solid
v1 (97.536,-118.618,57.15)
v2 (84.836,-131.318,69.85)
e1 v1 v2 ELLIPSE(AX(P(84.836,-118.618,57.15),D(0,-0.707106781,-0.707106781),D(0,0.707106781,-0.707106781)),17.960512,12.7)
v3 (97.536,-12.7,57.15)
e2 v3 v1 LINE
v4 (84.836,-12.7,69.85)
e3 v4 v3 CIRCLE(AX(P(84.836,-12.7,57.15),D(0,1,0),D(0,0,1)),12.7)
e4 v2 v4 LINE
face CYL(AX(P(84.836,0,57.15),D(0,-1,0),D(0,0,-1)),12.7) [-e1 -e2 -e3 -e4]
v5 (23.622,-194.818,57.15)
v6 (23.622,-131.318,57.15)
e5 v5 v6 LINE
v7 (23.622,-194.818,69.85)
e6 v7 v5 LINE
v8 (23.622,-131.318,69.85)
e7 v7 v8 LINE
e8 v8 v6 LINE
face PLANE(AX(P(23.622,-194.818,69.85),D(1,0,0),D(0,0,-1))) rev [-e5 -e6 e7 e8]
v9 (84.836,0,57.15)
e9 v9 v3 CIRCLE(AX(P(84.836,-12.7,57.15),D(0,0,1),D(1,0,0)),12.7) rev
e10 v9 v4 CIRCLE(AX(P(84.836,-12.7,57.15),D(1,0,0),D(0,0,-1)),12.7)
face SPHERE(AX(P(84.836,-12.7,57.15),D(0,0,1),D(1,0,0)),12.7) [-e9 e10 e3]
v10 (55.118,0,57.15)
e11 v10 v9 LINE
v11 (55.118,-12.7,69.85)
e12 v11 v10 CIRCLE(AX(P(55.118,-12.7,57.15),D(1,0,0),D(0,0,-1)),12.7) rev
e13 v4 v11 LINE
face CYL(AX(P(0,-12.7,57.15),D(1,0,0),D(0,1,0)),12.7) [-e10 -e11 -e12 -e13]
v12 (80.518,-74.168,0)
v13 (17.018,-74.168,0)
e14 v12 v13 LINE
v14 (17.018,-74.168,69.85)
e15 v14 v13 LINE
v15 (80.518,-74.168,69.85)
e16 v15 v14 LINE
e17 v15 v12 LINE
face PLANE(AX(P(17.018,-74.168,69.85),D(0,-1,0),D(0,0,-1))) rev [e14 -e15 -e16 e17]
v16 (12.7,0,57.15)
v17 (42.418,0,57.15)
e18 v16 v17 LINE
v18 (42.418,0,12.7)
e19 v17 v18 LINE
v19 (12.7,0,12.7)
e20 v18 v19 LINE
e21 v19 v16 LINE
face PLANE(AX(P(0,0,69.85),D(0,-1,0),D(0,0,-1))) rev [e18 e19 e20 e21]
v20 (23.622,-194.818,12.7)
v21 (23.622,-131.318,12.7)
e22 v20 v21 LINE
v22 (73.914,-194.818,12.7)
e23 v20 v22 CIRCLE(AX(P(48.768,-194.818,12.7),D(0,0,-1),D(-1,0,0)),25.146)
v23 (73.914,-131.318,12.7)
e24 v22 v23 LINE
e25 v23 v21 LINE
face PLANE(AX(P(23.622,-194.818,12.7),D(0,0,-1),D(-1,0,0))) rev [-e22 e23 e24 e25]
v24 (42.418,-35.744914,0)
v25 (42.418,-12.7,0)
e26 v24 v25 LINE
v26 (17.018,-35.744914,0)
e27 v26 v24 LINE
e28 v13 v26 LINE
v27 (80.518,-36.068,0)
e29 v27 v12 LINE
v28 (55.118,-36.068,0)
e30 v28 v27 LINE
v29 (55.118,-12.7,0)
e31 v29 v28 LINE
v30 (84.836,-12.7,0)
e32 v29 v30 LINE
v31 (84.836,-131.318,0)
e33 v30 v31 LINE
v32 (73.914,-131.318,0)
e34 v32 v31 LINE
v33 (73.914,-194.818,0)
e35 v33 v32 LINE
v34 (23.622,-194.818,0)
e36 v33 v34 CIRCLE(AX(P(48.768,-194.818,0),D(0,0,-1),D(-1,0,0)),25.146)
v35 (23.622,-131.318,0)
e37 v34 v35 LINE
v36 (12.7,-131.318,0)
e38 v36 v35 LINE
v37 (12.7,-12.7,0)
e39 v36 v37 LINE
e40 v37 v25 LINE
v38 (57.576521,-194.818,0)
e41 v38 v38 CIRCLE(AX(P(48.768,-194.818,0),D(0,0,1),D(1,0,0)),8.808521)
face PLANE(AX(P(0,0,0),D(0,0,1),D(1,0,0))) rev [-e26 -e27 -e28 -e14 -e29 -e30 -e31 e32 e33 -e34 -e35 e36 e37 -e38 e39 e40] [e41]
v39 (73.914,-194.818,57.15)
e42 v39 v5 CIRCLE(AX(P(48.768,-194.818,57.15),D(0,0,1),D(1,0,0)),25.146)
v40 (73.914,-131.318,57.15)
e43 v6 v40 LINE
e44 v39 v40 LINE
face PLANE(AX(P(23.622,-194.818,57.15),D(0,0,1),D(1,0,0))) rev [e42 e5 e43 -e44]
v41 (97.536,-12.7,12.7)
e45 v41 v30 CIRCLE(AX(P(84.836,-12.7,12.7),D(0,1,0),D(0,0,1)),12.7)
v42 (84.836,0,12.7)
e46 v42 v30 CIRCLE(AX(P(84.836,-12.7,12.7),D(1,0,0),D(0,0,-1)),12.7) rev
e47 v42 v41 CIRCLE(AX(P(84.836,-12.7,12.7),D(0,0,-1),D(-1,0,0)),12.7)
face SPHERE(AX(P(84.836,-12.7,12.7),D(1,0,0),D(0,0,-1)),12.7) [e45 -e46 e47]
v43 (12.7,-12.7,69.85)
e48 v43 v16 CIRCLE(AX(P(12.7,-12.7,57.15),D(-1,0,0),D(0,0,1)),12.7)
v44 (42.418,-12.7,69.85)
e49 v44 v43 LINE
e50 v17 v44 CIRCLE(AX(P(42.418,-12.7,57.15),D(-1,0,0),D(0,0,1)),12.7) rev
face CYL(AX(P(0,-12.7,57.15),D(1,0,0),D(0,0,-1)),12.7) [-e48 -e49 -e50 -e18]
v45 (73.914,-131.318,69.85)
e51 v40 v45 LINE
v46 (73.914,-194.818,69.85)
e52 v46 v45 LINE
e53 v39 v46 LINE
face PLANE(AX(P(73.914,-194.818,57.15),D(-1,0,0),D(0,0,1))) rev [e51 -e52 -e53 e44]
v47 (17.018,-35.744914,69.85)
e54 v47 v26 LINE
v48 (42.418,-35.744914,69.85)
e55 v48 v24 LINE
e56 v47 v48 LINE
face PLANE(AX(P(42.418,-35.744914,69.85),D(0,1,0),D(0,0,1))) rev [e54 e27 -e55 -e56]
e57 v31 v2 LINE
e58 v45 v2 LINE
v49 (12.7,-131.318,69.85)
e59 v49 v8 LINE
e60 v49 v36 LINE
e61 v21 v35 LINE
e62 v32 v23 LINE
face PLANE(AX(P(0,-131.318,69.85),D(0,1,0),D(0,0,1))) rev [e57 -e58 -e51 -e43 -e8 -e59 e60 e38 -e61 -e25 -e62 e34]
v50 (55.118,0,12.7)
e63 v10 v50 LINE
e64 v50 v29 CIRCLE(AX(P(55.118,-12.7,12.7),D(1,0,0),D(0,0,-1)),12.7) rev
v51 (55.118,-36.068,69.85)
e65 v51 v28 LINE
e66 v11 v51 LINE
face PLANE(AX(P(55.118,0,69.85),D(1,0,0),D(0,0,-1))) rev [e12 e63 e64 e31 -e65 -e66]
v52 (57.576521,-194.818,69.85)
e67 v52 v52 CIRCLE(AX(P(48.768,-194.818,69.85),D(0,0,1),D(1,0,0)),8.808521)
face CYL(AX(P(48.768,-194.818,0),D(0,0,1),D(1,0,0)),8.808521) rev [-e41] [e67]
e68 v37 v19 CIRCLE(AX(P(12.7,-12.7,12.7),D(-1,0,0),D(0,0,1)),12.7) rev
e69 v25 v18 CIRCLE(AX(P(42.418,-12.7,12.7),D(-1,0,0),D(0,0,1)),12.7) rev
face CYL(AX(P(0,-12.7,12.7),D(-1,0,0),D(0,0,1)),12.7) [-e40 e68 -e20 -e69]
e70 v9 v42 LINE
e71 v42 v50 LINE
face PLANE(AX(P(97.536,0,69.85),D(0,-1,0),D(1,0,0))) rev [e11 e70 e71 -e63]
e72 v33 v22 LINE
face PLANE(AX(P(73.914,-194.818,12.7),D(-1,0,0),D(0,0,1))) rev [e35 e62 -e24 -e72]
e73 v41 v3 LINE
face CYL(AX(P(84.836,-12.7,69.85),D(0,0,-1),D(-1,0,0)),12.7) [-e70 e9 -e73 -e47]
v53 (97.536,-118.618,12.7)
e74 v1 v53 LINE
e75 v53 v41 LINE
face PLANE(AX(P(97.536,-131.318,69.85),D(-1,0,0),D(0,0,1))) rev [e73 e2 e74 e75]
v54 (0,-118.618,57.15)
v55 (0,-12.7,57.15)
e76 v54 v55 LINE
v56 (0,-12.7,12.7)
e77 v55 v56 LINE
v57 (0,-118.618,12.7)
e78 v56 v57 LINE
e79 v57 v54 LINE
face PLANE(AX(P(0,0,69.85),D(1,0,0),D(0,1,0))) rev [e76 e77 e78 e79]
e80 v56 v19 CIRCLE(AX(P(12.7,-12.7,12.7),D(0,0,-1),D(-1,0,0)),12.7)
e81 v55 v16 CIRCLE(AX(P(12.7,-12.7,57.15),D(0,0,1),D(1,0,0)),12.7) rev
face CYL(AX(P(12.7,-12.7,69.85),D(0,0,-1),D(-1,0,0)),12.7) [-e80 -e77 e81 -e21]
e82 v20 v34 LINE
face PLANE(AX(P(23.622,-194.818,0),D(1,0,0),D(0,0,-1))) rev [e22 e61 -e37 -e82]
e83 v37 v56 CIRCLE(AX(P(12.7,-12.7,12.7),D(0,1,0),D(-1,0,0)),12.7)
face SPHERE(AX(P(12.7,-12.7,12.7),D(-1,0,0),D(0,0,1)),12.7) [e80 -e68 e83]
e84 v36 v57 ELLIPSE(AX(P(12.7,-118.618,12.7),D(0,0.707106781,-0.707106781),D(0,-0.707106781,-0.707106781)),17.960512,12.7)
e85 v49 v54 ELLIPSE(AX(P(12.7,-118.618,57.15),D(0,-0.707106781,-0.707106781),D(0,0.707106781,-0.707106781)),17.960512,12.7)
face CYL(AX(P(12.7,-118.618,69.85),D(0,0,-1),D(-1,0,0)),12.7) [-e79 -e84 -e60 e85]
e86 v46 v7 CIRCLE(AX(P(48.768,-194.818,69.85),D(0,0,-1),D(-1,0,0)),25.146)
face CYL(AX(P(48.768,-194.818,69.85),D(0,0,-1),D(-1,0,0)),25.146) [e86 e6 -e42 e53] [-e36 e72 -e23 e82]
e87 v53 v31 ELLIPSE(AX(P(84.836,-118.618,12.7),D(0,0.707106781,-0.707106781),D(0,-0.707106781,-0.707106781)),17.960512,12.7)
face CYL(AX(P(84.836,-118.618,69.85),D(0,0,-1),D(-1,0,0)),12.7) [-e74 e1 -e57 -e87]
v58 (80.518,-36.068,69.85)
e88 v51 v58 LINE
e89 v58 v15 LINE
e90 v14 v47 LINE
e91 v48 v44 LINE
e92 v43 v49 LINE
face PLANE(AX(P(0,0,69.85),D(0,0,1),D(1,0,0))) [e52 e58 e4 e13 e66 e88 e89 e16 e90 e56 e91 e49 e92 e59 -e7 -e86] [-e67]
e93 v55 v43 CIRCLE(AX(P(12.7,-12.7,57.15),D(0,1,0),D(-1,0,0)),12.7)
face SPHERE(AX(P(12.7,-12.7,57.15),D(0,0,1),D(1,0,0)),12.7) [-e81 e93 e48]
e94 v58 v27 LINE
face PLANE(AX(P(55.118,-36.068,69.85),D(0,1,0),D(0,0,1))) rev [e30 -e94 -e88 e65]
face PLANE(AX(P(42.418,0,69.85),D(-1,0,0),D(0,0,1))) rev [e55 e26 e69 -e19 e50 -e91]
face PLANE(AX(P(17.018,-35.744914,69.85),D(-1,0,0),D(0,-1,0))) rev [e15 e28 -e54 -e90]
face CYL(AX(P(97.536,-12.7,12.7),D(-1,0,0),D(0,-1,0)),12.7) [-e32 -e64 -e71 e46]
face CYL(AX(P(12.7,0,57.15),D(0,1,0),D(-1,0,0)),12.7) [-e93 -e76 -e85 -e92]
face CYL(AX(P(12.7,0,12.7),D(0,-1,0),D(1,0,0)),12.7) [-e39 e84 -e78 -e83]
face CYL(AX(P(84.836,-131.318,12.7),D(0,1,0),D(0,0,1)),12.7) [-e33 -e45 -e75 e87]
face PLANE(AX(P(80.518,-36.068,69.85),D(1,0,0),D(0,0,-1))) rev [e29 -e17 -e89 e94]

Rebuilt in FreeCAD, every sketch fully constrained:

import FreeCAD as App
import Part
import Sketcher
Q = App.Units.Quantity


def edges_at(feature, points):
    """Names of the edges that pass closest to the given points."""
    edges = feature.Shape.Edges
    near = lambda p: min(range(len(edges)), key=lambda i: edges[i].distToShape(Part.Vertex(*p))[0])
    return sorted({f"Edge{near(p) + 1}" for p in points})

doc = App.newDocument("Part")
body = doc.addObject("PartDesign::Body", "Body")

# Sketch on XY plane
sketch1 = body.newObject("Sketcher::SketchObject", "Sketch")
sketch1.AttachmentSupport = (doc.getObject("XY_Plane"), [""])
sketch1.MapMode = "FlatFace"
sketch1.addGeometry(Part.LineSegment(App.Vector(42, 0, 0), App.Vector(0, 0, 0)), False)
sketch1.addGeometry(Part.LineSegment(App.Vector(0, 0, 0), App.Vector(0, -131, 0)), False)
sketch1.addGeometry(Part.LineSegment(App.Vector(0, -131, 0), App.Vector(98, -131, 0)), False)
sketch1.addGeometry(Part.LineSegment(App.Vector(98, -131, 0), App.Vector(98, 0, 0)), False)
sketch1.addGeometry(Part.LineSegment(App.Vector(98, 0, 0), App.Vector(55, 0, 0)), False)
sketch1.addGeometry(Part.LineSegment(App.Vector(55, 0, 0), App.Vector(55, -36, 0)), False)
sketch1.addGeometry(Part.LineSegment(App.Vector(55, -36, 0), App.Vector(81, -36, 0)), False)
sketch1.addGeometry(Part.LineSegment(App.Vector(81, -36, 0), App.Vector(81, -74, 0)), False)
sketch1.addGeometry(Part.LineSegment(App.Vector(81, -74, 0), App.Vector(17, -74, 0)), False)
sketch1.addGeometry(Part.LineSegment(App.Vector(17, -74, 0), App.Vector(17, -36, 0)), False)
sketch1.addGeometry(Part.LineSegment(App.Vector(17, -36, 0), App.Vector(42, -36, 0)), False)
sketch1.addGeometry(Part.LineSegment(App.Vector(42, -36, 0), App.Vector(42, 0, 0)), False)
sketch1.addConstraint(Sketcher.Constraint("Coincident", 0, 2, 1, 1))
sketch1.addConstraint(Sketcher.Constraint("Coincident", 1, 2, 2, 1))
sketch1.addConstraint(Sketcher.Constraint("Coincident", 2, 2, 3, 1))
sketch1.addConstraint(Sketcher.Constraint("Coincident", 3, 2, 4, 1))
sketch1.addConstraint(Sketcher.Constraint("Coincident", 4, 2, 5, 1))
sketch1.addConstraint(Sketcher.Constraint("Coincident", 5, 2, 6, 1))
sketch1.addConstraint(Sketcher.Constraint("Coincident", 6, 2, 7, 1))
sketch1.addConstraint(Sketcher.Constraint("Coincident", 7, 2, 8, 1))
sketch1.addConstraint(Sketcher.Constraint("Coincident", 8, 2, 9, 1))
sketch1.addConstraint(Sketcher.Constraint("Coincident", 9, 2, 10, 1))
sketch1.addConstraint(Sketcher.Constraint("Coincident", 10, 2, 11, 1))
sketch1.addConstraint(Sketcher.Constraint("Coincident", 11, 2, 0, 1))
sketch1.addConstraint(Sketcher.Constraint("Horizontal", 0))
sketch1.addConstraint(Sketcher.Constraint("Vertical", 1))
sketch1.addConstraint(Sketcher.Constraint("Horizontal", 2))
sketch1.addConstraint(Sketcher.Constraint("Vertical", 3))
sketch1.addConstraint(Sketcher.Constraint("Horizontal", 4))
sketch1.addConstraint(Sketcher.Constraint("Vertical", 5))
sketch1.addConstraint(Sketcher.Constraint("Horizontal", 6))
sketch1.addConstraint(Sketcher.Constraint("Vertical", 7))
sketch1.addConstraint(Sketcher.Constraint("Horizontal", 8))
sketch1.addConstraint(Sketcher.Constraint("Vertical", 9))
sketch1.addConstraint(Sketcher.Constraint("Horizontal", 10))
sketch1.addConstraint(Sketcher.Constraint("Vertical", 11))
sketch1.addConstraint(Sketcher.Constraint("Coincident", 0, 2, -1, 1))
sketch1.addConstraint(Sketcher.Constraint("PointOnObject", 3, 2, -1))
sketch1.addConstraint(Sketcher.Constraint("Equal", 0, 4))
sketch1.addConstraint(Sketcher.Constraint("Equal", 6, 10))
sketch1.addConstraint(Sketcher.Constraint("DistanceX", 6, 1, 6, 2, Q("1 in")))
sketch1.addConstraint(Sketcher.Constraint("DistanceX", 8, 2, 8, 1, Q("2.5 in")))
sketch1.addConstraint(Sketcher.Constraint("DistanceY", 7, 2, 7, 1, Q("1.5 in")))
sketch1.addConstraint(Sketcher.Constraint("DistanceX", 0, 2, 0, 1, Q("1.67 in")))
sketch1.addConstraint(Sketcher.Constraint("DistanceY", 1, 2, 1, 1, Q("5.17 in")))
sketch1.addConstraint(Sketcher.Constraint("DistanceY", 5, 2, 5, 1, Q("1.42 in")))
sketch1.addConstraint(Sketcher.Constraint("DistanceY", 9, 1, 9, 2, Q("38.423086 mm")))
pad1 = body.newObject("PartDesign::Pad", "Pad")
pad1.Profile = sketch1
pad1.Length = Q("2.75 in")

# Sketch on XZ plane
sketch2 = body.newObject("Sketcher::SketchObject", "Sketch001")
sketch2.AttachmentSupport = (doc.getObject("XZ_Plane"), [""])
sketch2.MapMode = "FlatFace"
sketch2.AttachmentOffset = App.Placement(App.Vector(0, 0, 5.17 * 25.4), App.Rotation())
sketch2.addGeometry(Part.LineSegment(App.Vector(24, 13, 0), App.Vector(24, 0, 0)), False)
sketch2.addGeometry(Part.LineSegment(App.Vector(24, 0, 0), App.Vector(74, 0, 0)), False)
sketch2.addGeometry(Part.LineSegment(App.Vector(74, 0, 0), App.Vector(74, 13, 0)), False)
sketch2.addGeometry(Part.LineSegment(App.Vector(74, 13, 0), App.Vector(24, 13, 0)), False)
sketch2.addGeometry(Part.LineSegment(App.Vector(24, 70, 0), App.Vector(24, 57, 0)), False)
sketch2.addGeometry(Part.LineSegment(App.Vector(24, 57, 0), App.Vector(74, 57, 0)), False)
sketch2.addGeometry(Part.LineSegment(App.Vector(74, 57, 0), App.Vector(74, 70, 0)), False)
sketch2.addGeometry(Part.LineSegment(App.Vector(74, 70, 0), App.Vector(24, 70, 0)), False)
sketch2.addConstraint(Sketcher.Constraint("Coincident", 0, 2, 1, 1))
sketch2.addConstraint(Sketcher.Constraint("Coincident", 1, 2, 2, 1))
sketch2.addConstraint(Sketcher.Constraint("Coincident", 2, 2, 3, 1))
sketch2.addConstraint(Sketcher.Constraint("Coincident", 3, 2, 0, 1))
sketch2.addConstraint(Sketcher.Constraint("Coincident", 4, 2, 5, 1))
sketch2.addConstraint(Sketcher.Constraint("Coincident", 5, 2, 6, 1))
sketch2.addConstraint(Sketcher.Constraint("Coincident", 6, 2, 7, 1))
sketch2.addConstraint(Sketcher.Constraint("Coincident", 7, 2, 4, 1))
sketch2.addConstraint(Sketcher.Constraint("Vertical", 0))
sketch2.addConstraint(Sketcher.Constraint("Horizontal", 1))
sketch2.addConstraint(Sketcher.Constraint("Vertical", 2))
sketch2.addConstraint(Sketcher.Constraint("Horizontal", 3))
sketch2.addConstraint(Sketcher.Constraint("Vertical", 4))
sketch2.addConstraint(Sketcher.Constraint("Horizontal", 5))
sketch2.addConstraint(Sketcher.Constraint("Vertical", 6))
sketch2.addConstraint(Sketcher.Constraint("Horizontal", 7))
sketch2.addConstraint(Sketcher.Constraint("PointOnObject", 0, 2, -1))
sketch2.addConstraint(Sketcher.Constraint("Vertical", 3, 2, 4, 2))
sketch2.addConstraint(Sketcher.Constraint("Vertical", 2, 2, 5, 2))
sketch2.addConstraint(Sketcher.Constraint("Equal", 2, 4))
sketch2.addConstraint(Sketcher.Constraint("DistanceY", 0, 2, 0, 1, Q("0.5 in")))
sketch2.addConstraint(Sketcher.Constraint("DistanceX", 1, 1, 1, 2, Q("1.98 in")))
sketch2.addConstraint(Sketcher.Constraint("DistanceX", -1, 1, 0, 2, Q("0.93 in")))
sketch2.addConstraint(Sketcher.Constraint("DistanceY", -1, 1, 4, 2, Q("2.25 in")))
pad2 = body.newObject("PartDesign::Pad", "Pad001")
pad2.Profile = sketch2
pad2.Length = Q("2.5 in")

# Sketch on XY plane
sketch3 = body.newObject("Sketcher::SketchObject", "Sketch002")
sketch3.AttachmentSupport = (doc.getObject("XY_Plane"), [""])
sketch3.MapMode = "FlatFace"
sketch3.addGeometry(Part.Circle(App.Vector(49, -195, 0), App.Vector(0, 0, 1), 25), False)
sketch3.addConstraint(Sketcher.Constraint("Diameter", 0, Q("1.98 in")))
sketch3.addConstraint(Sketcher.Constraint("DistanceX", -1, 1, 0, 3, Q("1.92 in")))
sketch3.addConstraint(Sketcher.Constraint("DistanceY", 0, 3, -1, 1, Q("7.67 in")))
pad3 = body.newObject("PartDesign::Pad", "Pad002")
pad3.Profile = sketch3
pad3.Length = Q("2.75 in")

# Sketch on XY plane
sketch4 = body.newObject("Sketcher::SketchObject", "Sketch003")
sketch4.AttachmentSupport = (doc.getObject("XY_Plane"), [""])
sketch4.MapMode = "FlatFace"
sketch4.AttachmentOffset = App.Placement(App.Vector(0, 0, 2.75 * 25.4), App.Rotation())
sketch4.addGeometry(Part.Circle(App.Vector(49, -195, 0), App.Vector(0, 0, 1), 9), False)
sketch4.addConstraint(Sketcher.Constraint("DistanceX", -1, 1, 0, 3, Q("1.92 in")))
sketch4.addConstraint(Sketcher.Constraint("DistanceY", 0, 3, -1, 1, Q("7.67 in")))
sketch4.addConstraint(Sketcher.Constraint("Diameter", 0, Q("17.617042 mm")))
pocket1 = body.newObject("PartDesign::Pocket", "Pocket")
pocket1.Profile = sketch4
pocket1.Type = "ThroughAll"
doc.recompute()

fillet = body.newObject("PartDesign::Fillet", "Fillet")
fillet.Base = (pocket1, edges_at(pocket1, [
    (21.209, 0, 0),
    (97.536, -65.659, 69.85),
    (76.327, 0, 0),
    (97.536, -65.659, 0),
    (0, -65.659, 0),
    (76.327, 0, 69.85),
    (0, 0, 34.925),
    (97.536, 0, 34.925),
    (97.536, -131.318, 34.925),
    (0, -131.318, 34.925),
    (21.209, 0, 69.85),
    (0, -65.659, 69.85),
]))
fillet.Radius = Q("0.5 in")

doc.recompute()
